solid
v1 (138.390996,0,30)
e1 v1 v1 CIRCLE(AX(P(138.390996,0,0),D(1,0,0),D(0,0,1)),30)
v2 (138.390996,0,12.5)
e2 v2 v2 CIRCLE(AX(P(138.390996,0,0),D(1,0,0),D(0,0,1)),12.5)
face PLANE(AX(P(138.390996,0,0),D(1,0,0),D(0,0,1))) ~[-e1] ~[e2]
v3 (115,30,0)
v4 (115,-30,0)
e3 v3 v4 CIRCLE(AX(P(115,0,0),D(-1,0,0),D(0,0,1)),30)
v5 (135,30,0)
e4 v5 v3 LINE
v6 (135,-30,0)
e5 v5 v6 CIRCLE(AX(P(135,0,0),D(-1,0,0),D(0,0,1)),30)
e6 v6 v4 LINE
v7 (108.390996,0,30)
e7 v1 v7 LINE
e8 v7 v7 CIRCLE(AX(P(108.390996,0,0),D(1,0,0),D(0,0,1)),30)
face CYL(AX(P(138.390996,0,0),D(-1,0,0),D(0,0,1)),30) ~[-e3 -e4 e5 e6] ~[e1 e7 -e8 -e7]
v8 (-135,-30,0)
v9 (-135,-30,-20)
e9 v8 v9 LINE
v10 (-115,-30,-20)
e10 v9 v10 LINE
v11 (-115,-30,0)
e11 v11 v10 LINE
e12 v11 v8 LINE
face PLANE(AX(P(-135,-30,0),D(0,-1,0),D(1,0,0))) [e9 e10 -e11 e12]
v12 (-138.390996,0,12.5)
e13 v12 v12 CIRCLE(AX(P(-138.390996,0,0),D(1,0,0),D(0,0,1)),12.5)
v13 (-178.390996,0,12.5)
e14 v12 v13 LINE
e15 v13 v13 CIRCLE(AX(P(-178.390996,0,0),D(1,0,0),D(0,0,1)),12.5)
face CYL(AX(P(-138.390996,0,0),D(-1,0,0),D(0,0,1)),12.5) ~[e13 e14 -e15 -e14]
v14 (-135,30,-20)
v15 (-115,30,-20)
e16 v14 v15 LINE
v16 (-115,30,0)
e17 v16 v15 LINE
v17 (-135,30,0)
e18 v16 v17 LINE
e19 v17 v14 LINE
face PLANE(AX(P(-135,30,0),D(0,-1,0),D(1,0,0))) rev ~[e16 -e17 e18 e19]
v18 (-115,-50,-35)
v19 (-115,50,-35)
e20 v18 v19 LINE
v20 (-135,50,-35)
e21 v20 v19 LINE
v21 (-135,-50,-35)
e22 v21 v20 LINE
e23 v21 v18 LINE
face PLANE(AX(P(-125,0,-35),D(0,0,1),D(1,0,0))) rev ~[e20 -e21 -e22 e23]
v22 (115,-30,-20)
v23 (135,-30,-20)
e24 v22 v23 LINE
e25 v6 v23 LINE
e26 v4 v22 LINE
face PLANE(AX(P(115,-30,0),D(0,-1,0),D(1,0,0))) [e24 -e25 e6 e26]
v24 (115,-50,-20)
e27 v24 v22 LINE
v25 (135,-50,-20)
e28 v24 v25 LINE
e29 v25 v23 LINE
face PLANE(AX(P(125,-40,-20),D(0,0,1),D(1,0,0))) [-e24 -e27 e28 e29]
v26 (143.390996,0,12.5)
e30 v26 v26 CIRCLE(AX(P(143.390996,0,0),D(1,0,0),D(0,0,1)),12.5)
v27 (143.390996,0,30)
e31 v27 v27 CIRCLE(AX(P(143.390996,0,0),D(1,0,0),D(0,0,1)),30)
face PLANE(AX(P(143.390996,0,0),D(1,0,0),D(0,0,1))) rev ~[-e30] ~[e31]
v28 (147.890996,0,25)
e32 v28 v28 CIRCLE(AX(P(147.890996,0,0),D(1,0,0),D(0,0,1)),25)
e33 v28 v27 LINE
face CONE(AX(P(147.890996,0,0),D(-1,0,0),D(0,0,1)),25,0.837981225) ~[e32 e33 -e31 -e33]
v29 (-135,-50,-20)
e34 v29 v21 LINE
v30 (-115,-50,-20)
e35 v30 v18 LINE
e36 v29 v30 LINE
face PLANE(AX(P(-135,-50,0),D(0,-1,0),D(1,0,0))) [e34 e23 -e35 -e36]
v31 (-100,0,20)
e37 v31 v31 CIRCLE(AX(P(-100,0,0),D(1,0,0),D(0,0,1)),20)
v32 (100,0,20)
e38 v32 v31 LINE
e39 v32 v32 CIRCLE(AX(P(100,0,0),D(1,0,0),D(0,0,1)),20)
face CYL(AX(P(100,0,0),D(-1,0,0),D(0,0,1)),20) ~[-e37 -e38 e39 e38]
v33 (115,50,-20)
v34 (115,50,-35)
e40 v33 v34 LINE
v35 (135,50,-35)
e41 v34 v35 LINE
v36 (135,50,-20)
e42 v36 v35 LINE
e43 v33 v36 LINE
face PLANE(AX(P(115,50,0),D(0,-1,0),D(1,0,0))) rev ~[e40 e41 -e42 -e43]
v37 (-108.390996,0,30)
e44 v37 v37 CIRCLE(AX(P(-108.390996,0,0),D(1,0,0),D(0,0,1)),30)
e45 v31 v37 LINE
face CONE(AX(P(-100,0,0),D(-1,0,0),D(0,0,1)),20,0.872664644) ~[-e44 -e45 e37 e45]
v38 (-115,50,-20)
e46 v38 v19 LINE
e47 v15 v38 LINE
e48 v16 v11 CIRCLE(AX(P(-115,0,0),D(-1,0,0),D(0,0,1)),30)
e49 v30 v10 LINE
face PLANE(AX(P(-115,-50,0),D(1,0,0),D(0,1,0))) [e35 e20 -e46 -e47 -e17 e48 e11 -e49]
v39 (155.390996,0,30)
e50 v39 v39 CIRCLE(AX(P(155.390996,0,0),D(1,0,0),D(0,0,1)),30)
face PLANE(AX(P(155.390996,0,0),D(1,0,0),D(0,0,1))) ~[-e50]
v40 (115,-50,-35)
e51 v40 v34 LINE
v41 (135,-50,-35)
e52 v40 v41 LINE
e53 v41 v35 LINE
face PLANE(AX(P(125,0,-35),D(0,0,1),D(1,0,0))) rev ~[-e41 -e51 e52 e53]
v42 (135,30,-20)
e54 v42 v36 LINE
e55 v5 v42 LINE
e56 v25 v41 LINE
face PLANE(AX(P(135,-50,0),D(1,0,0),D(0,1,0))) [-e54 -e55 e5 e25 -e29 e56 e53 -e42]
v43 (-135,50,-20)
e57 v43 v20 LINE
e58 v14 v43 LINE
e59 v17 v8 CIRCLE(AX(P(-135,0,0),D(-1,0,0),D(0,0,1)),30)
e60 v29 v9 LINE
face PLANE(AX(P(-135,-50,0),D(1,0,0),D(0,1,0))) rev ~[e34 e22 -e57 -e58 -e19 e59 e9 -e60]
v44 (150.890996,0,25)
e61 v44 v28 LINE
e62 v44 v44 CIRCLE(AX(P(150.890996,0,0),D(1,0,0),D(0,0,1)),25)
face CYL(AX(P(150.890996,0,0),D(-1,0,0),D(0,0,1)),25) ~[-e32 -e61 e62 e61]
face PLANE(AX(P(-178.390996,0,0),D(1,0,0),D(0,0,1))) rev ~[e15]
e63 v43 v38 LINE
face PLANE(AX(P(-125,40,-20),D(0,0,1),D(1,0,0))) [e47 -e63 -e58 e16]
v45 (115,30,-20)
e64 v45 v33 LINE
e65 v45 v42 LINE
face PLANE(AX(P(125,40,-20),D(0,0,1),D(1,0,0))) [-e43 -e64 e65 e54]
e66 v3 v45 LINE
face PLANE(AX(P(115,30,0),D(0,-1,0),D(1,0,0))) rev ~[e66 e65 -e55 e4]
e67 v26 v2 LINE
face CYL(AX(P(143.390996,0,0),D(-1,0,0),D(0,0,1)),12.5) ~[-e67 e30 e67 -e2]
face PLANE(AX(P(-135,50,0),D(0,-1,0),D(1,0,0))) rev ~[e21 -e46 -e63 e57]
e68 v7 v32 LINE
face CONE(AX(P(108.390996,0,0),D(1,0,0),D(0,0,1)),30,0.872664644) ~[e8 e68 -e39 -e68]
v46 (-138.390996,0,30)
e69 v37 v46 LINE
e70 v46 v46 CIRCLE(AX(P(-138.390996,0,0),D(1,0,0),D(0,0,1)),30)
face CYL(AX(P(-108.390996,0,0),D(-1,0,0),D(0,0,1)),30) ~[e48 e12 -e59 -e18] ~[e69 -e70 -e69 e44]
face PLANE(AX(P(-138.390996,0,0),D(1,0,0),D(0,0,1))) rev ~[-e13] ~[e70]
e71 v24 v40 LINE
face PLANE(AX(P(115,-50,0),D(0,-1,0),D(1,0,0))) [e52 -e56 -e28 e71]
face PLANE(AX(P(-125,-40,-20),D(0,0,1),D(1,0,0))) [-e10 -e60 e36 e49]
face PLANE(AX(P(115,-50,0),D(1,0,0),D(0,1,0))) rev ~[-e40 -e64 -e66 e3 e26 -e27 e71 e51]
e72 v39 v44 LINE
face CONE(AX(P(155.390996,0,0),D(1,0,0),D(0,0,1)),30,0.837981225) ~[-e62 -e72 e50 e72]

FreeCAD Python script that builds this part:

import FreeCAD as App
import Part
import Sketcher

V = App.Vector
Q = App.Units.Quantity


def add_polygon(sketch, points):
    """Adds a closed chain of lines whose ends are joined by coincident constraints."""
    first, n = sketch.GeometryCount, len(points)
    for a, b in zip(points, points[1:] + points[:1]):
        sketch.addGeometry(Part.LineSegment(App.Vector(*a, 0), App.Vector(*b, 0)), False)
    for i in range(n):
        sketch.addConstraint(Sketcher.Constraint("Coincident", first + i, 2, first + (i + 1) % n, 1))

doc = App.newDocument("Part")
body = doc.addObject("PartDesign::Body", "Body")

sketch1 = doc.addObject("Sketcher::SketchObject", "Sketch")
body.addObject(sketch1)
sketch1.AttachmentSupport = (doc.XZ_Plane, [""])
sketch1.MapMode = "FlatFace"
add_polygon(sketch1, [(-108.4, 30), (-138.4, 30), (-138.4, 12.5), (-178.4, 12.5), (-178.4, 0), (155.4, 0), (155.4, 30), (150.9, 25), (147.9, 25), (143.4, 30), (143.4, 12.5), (138.4, 12.5), (138.4, 30), (108.4, 30), (100, 20), (-100, 20)])
sketch1.addConstraint([
    Sketcher.Constraint("Horizontal", 0),
    Sketcher.Constraint("Vertical", 1),
    Sketcher.Constraint("Horizontal", 2),
    Sketcher.Constraint("Vertical", 3),
    Sketcher.Constraint("Horizontal", 4),
    Sketcher.Constraint("Vertical", 5),
    Sketcher.Constraint("Horizontal", 7),
    Sketcher.Constraint("Vertical", 9),
    Sketcher.Constraint("Horizontal", 10),
    Sketcher.Constraint("Vertical", 11),
    Sketcher.Constraint("Horizontal", 12),
    Sketcher.Constraint("Horizontal", 14),
    Sketcher.Constraint("Symmetric", 1, 2, 10, 2, -2),
    Sketcher.Constraint("Symmetric", 12, 2, 15, 2, -2),
    Sketcher.Constraint("PointOnObject", 3, 2, -1),
    Sketcher.Constraint("Horizontal", 0, 2, 5, 2),
    Sketcher.Constraint("Horizontal", 5, 2, 8, 2),
    Sketcher.Constraint("Equal", 12, 5),
    Sketcher.Constraint("Equal", 6, 8),
    Sketcher.Constraint("Equal", 13, 15),
    Sketcher.Constraint("DistanceX", 0, 2, 0, 1, 30.0),
    Sketcher.Constraint("DistanceX", 2, 2, 2, 1, 40.0),
    Sketcher.Constraint("DistanceX", 7, 2, 7, 1, 3.0),
    Sketcher.Constraint("DistanceX", 10, 2, 10, 1, 5.0),
    Sketcher.Constraint("DistanceX", 14, 2, 14, 1, 200.0),
    Sketcher.Constraint("Angle", 13, Q("-129.999999 deg")),
    Sketcher.Constraint("DistanceY", 1, 2, 1, 1, 17.5),
    Sketcher.Constraint("DistanceY", -1, 1, 6, 2, 25.0),
    Sketcher.Constraint("DistanceY", -1, 1, 13, 2, 20.0),
    Sketcher.Constraint("DistanceX", 8, 2, 5, 2, 12.0),
])
revolution = doc.addObject("PartDesign::Revolution", "Revolution")
body.addObject(revolution)
revolution.Profile = sketch1
revolution.ReferenceAxis = (sketch1, ["H_Axis"])
revolution.Angle = 360

sketch2 = doc.addObject("Sketcher::SketchObject", "Sketch001")
body.addObject(sketch2)
sketch2.AttachmentSupport = (doc.XY_Plane, [""])
sketch2.MapMode = "FlatFace"
add_polygon(sketch2, [(-135, 50), (-135, -50), (-115, -50), (-115, 50)])
add_polygon(sketch2, [(115, 50), (115, -50), (135, -50), (135, 50)])
sketch2.addConstraint([
    Sketcher.Constraint("Vertical", 0),
    Sketcher.Constraint("Horizontal", 1),
    Sketcher.Constraint("Vertical", 2),
    Sketcher.Constraint("Horizontal", 3),
    Sketcher.Constraint("Vertical", 4),
    Sketcher.Constraint("Horizontal", 5),
    Sketcher.Constraint("Vertical", 6),
    Sketcher.Constraint("Horizontal", 7),
    Sketcher.Constraint("Symmetric", 2, 2, 4, 2, -1, 1),
    Sketcher.Constraint("Symmetric", 0, 2, 6, 2, -1, 1),
    Sketcher.Constraint("Horizontal", 1, 2, 4, 2),
    Sketcher.Constraint("DistanceX", 1, 1, 1, 2, 20.0),
    Sketcher.Constraint("DistanceY", 0, 2, 0, 1, 100.0),
    Sketcher.Constraint("DistanceX", 0, 2, -1, 1, 135.0),
])
pad1 = doc.addObject("PartDesign::Pad", "Pad")
body.addObject(pad1)
pad1.Profile = sketch2
pad1.Length = 35
pad1.Reversed = True

sketch3 = doc.addObject("Sketcher::SketchObject", "Sketch002")
body.addObject(sketch3)
sketch3.AttachmentSupport = (doc.XY_Plane, [""])
sketch3.MapMode = "FlatFace"
add_polygon(sketch3, [(-135, 50), (-135, 30), (-115, 30), (-115, 50)])
add_polygon(sketch3, [(-135, -30), (-135, -50), (-115, -50), (-115, -30)])
add_polygon(sketch3, [(115, -30), (115, -50), (135, -50), (135, -30)])
add_polygon(sketch3, [(115, 50), (115, 30), (135, 30), (135, 50)])
sketch3.addConstraint([
    Sketcher.Constraint("Vertical", 0),
    Sketcher.Constraint("Horizontal", 1),
    Sketcher.Constraint("Vertical", 2),
    Sketcher.Constraint("Horizontal", 3),
    Sketcher.Constraint("Vertical", 4),
    Sketcher.Constraint("Horizontal", 5),
    Sketcher.Constraint("Vertical", 6),
    Sketcher.Constraint("Horizontal", 7),
    Sketcher.Constraint("Vertical", 8),
    Sketcher.Constraint("Horizontal", 9),
    Sketcher.Constraint("Vertical", 10),
    Sketcher.Constraint("Horizontal", 11),
    Sketcher.Constraint("Vertical", 12),
    Sketcher.Constraint("Horizontal", 13),
    Sketcher.Constraint("Vertical", 14),
    Sketcher.Constraint("Horizontal", 15),
    Sketcher.Constraint("Symmetric", 2, 2, 8, 2, -1, 1),
    Sketcher.Constraint("Symmetric", 0, 2, 10, 2, -1, 1),
    Sketcher.Constraint("Symmetric", 6, 2, 12, 2, -1, 1),
    Sketcher.Constraint("Symmetric", 4, 2, 14, 2, -1, 1),
    Sketcher.Constraint("Symmetric", 5, 2, 8, 2, -2),
    Sketcher.Constraint("Symmetric", 7, 2, 10, 2, -2),
    Sketcher.Constraint("Equal", 15, 0),
    Sketcher.Constraint("DistanceX", 1, 1, 1, 2, 20.0),
    Sketcher.Constraint("DistanceX", 0, 2, -1, 1, 135.0),
    Sketcher.Constraint("DistanceY", -1, 1, 0, 2, 30.0),
])
pocket1 = doc.addObject("PartDesign::Pocket", "Pocket")
body.addObject(pocket1)
pocket1.Profile = sketch3
pocket1.Length = 20

doc.recompute()
